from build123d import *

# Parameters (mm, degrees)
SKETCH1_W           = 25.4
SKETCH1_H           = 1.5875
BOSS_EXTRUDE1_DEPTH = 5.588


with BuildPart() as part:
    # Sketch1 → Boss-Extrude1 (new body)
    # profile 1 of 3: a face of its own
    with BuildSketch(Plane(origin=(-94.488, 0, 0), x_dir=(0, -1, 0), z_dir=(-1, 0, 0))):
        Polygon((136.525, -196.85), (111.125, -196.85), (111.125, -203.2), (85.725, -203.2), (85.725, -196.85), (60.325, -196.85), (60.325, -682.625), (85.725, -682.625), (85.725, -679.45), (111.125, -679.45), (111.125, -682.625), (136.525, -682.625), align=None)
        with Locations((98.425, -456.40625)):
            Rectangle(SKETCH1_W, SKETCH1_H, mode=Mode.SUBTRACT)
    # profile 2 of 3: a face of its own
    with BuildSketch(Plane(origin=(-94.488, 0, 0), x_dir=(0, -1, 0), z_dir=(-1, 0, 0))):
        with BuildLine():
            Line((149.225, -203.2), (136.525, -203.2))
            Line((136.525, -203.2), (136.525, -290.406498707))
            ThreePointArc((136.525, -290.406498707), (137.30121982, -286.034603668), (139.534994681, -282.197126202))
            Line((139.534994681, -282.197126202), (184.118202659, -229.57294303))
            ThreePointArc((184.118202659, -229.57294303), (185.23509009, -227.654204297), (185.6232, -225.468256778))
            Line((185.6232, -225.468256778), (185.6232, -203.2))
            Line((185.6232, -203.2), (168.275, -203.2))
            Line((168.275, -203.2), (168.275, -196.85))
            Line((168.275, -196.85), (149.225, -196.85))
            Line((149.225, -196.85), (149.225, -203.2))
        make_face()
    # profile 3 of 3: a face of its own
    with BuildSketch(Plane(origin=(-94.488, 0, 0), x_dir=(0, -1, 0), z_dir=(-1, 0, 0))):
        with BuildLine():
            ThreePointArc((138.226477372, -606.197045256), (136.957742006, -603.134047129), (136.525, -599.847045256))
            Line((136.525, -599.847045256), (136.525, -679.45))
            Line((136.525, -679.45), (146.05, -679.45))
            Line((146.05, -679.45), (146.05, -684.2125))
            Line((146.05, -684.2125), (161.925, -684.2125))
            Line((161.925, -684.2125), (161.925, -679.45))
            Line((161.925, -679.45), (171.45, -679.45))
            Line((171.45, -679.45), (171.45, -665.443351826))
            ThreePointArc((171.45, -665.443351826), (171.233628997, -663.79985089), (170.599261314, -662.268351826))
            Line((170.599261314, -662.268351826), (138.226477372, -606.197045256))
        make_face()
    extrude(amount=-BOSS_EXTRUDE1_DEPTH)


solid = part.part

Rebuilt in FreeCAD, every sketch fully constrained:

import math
import FreeCAD as App
import Part
import Sketcher

V = App.Vector
Q = App.Units.Quantity


def add_polygon(sketch, points):
    """Adds a closed chain of lines whose ends are joined by coincident constraints."""
    first, n = sketch.GeometryCount, len(points)
    for a, b in zip(points, points[1:] + points[:1]):
        sketch.addGeometry(Part.LineSegment(App.Vector(*a, 0), App.Vector(*b, 0)), False)
    for i in range(n):
        sketch.addConstraint(Sketcher.Constraint("Coincident", first + i, 2, first + (i + 1) % n, 1))

doc = App.newDocument("Part")
body = doc.addObject("PartDesign::Body", "Body")

# Sketch on YZ plane
sketch1 = body.newObject("Sketcher::SketchObject", "Sketch")
sketch1.AttachmentSupport = (doc.getObject("YZ_Plane"), [""])
sketch1.MapMode = "FlatFace"
sketch1.AttachmentOffset = App.Placement(V(0, 0, -3.72 * 25.4), App.Rotation())
sketch1.addGeometry(Part.LineSegment(V(-136.5, -196.8, 0), V(-111.1, -196.8, 0)), False)  # 0
sketch1.addGeometry(Part.LineSegment(V(-111.1, -196.8, 0), V(-111.1, -203.2, 0)), False)  # 1
sketch1.addGeometry(Part.LineSegment(V(-111.1, -203.2, 0), V(-85.7, -203.2, 0)), False)  # 2
sketch1.addGeometry(Part.LineSegment(V(-85.7, -203.2, 0), V(-85.7, -196.8, 0)), False)  # 3
sketch1.addGeometry(Part.LineSegment(V(-85.7, -196.8, 0), V(-60.3, -196.8, 0)), False)  # 4
sketch1.addGeometry(Part.LineSegment(V(-60.3, -196.8, 0), V(-60.3, -682.6, 0)), False)  # 5
sketch1.addGeometry(Part.LineSegment(V(-60.3, -682.6, 0), V(-85.7, -682.6, 0)), False)  # 6
sketch1.addGeometry(Part.LineSegment(V(-85.7, -682.6, 0), V(-85.7, -679.5, 0)), False)  # 7
sketch1.addGeometry(Part.LineSegment(V(-85.7, -679.5, 0), V(-111.1, -679.5, 0)), False)  # 8
sketch1.addGeometry(Part.LineSegment(V(-111.1, -679.5, 0), V(-111.1, -682.6, 0)), False)  # 9
sketch1.addGeometry(Part.LineSegment(V(-111.1, -682.6, 0), V(-136.5, -682.6, 0)), False)  # 10
sketch1.addGeometry(Part.LineSegment(V(-136.5, -682.6, 0), V(-136.5, -679.5, 0)), False)  # 11
sketch1.addGeometry(Part.LineSegment(V(-136.5, -679.5, 0), V(-146.1, -679.5, 0)), False)  # 12
sketch1.addGeometry(Part.LineSegment(V(-146.1, -679.5, 0), V(-146.1, -684.2, 0)), False)  # 13
sketch1.addGeometry(Part.LineSegment(V(-146.1, -684.2, 0), V(-161.9, -684.2, 0)), False)  # 14
sketch1.addGeometry(Part.LineSegment(V(-161.9, -684.2, 0), V(-161.9, -679.5, 0)), False)  # 15
sketch1.addGeometry(Part.LineSegment(V(-161.9, -679.5, 0), V(-171.4, -679.5, 0)), False)  # 16
sketch1.addGeometry(Part.LineSegment(V(-171.4, -679.5, 0), V(-171.4, -665.4, 0)), False)  # 17
sketch1.addGeometry(Part.ArcOfCircle(Part.Circle(V(-165.1, -665.4, 0), V(0, 0, 1), 6.4), math.radians(150), math.radians(180)), False)  # 18
sketch1.addGeometry(Part.LineSegment(V(-170.6, -662.3, 0), V(-138.2, -606.2, 0)), False)  # 19
sketch1.addGeometry(Part.ArcOfCircle(Part.Circle(V(-149.2, -599.8, 0), V(0, 0, 1), 12.7), math.radians(-30), math.radians(0)), False)  # 20
sketch1.addGeometry(Part.LineSegment(V(-136.5, -599.8, 0), V(-136.5, -290.4, 0)), False)  # 21
sketch1.addGeometry(Part.ArcOfCircle(Part.Circle(V(-149.2, -290.4, 0), V(0, 0, 1), 12.7), math.radians(0), math.radians(40)), False)  # 22
sketch1.addGeometry(Part.LineSegment(V(-139.5, -282.2, 0), V(-184.1, -229.6, 0)), False)  # 23
sketch1.addGeometry(Part.ArcOfCircle(Part.Circle(V(-179.3, -225.5, 0), V(0, 0, 1), 6.3), math.radians(180), math.radians(220)), False)  # 24
sketch1.addGeometry(Part.LineSegment(V(-185.6, -225.5, 0), V(-185.6, -203.2, 0)), False)  # 25
sketch1.addGeometry(Part.LineSegment(V(-185.6, -203.2, 0), V(-168.3, -203.2, 0)), False)  # 26
sketch1.addGeometry(Part.LineSegment(V(-168.3, -203.2, 0), V(-168.3, -196.8, 0)), False)  # 27
sketch1.addGeometry(Part.LineSegment(V(-168.3, -196.8, 0), V(-149.2, -196.8, 0)), False)  # 28
sketch1.addGeometry(Part.LineSegment(V(-149.2, -196.8, 0), V(-149.2, -203.2, 0)), False)  # 29
sketch1.addGeometry(Part.LineSegment(V(-149.2, -203.2, 0), V(-136.5, -203.2, 0)), False)  # 30
sketch1.addGeometry(Part.LineSegment(V(-136.5, -203.2, 0), V(-136.5, -196.8, 0)), False)  # 31
add_polygon(sketch1, [(-111.1, -457.2), (-85.7, -457.2), (-85.7, -455.6), (-111.1, -455.6)])  # lines 32-35
sketch1.addConstraint([
    Sketcher.Constraint("Coincident", 0, 2, 1, 1),
    Sketcher.Constraint("Coincident", 1, 2, 2, 1),
    Sketcher.Constraint("Coincident", 2, 2, 3, 1),
    Sketcher.Constraint("Coincident", 3, 2, 4, 1),
    Sketcher.Constraint("Coincident", 4, 2, 5, 1),
    Sketcher.Constraint("Coincident", 5, 2, 6, 1),
    Sketcher.Constraint("Coincident", 6, 2, 7, 1),
    Sketcher.Constraint("Coincident", 7, 2, 8, 1),
    Sketcher.Constraint("Coincident", 8, 2, 9, 1),
    Sketcher.Constraint("Coincident", 9, 2, 10, 1),
    Sketcher.Constraint("Coincident", 10, 2, 11, 1),
    Sketcher.Constraint("Coincident", 11, 2, 12, 1),
    Sketcher.Constraint("Coincident", 12, 2, 13, 1),
    Sketcher.Constraint("Coincident", 13, 2, 14, 1),
    Sketcher.Constraint("Coincident", 14, 2, 15, 1),
    Sketcher.Constraint("Coincident", 15, 2, 16, 1),
    Sketcher.Constraint("Coincident", 16, 2, 17, 1),
    Sketcher.Constraint("Tangent", 17, 2, 18, 2),
    Sketcher.Constraint("Tangent", 18, 1, 19, 1),
    Sketcher.Constraint("Tangent", 19, 2, 20, 1),
    Sketcher.Constraint("Tangent", 20, 2, 21, 1),
    Sketcher.Constraint("Tangent", 21, 2, 22, 1),
    Sketcher.Constraint("Tangent", 22, 2, 23, 1),
    Sketcher.Constraint("Tangent", 23, 2, 24, 2),
    Sketcher.Constraint("Tangent", 24, 1, 25, 1),
    Sketcher.Constraint("Coincident", 25, 2, 26, 1),
    Sketcher.Constraint("Coincident", 26, 2, 27, 1),
    Sketcher.Constraint("Coincident", 27, 2, 28, 1),
    Sketcher.Constraint("Coincident", 28, 2, 29, 1),
    Sketcher.Constraint("Coincident", 29, 2, 30, 1),
    Sketcher.Constraint("Coincident", 30, 2, 31, 1),
    Sketcher.Constraint("Coincident", 31, 2, 0, 1),
    Sketcher.Constraint("Horizontal", 0),
    Sketcher.Constraint("Vertical", 1),
    Sketcher.Constraint("Horizontal", 2),
    Sketcher.Constraint("Vertical", 3),
    Sketcher.Constraint("Horizontal", 4),
    Sketcher.Constraint("Vertical", 5),
    Sketcher.Constraint("Horizontal", 6),
    Sketcher.Constraint("Vertical", 7),
    Sketcher.Constraint("Horizontal", 8),
    Sketcher.Constraint("Vertical", 9),
    Sketcher.Constraint("Horizontal", 10),
    Sketcher.Constraint("Vertical", 11),
    Sketcher.Constraint("Horizontal", 12),
    Sketcher.Constraint("Vertical", 13),
    Sketcher.Constraint("Horizontal", 14),
    Sketcher.Constraint("Vertical", 15),
    Sketcher.Constraint("Horizontal", 16),
    Sketcher.Constraint("Vertical", 17),
    Sketcher.Constraint("Vertical", 21),
    Sketcher.Constraint("Vertical", 25),
    Sketcher.Constraint("Horizontal", 26),
    Sketcher.Constraint("Vertical", 27),
    Sketcher.Constraint("Horizontal", 28),
    Sketcher.Constraint("Vertical", 29),
    Sketcher.Constraint("Horizontal", 30),
    Sketcher.Constraint("Vertical", 31),
    Sketcher.Constraint("Horizontal", 32),
    Sketcher.Constraint("Vertical", 33),
    Sketcher.Constraint("Horizontal", 34),
    Sketcher.Constraint("Vertical", 35),
    Sketcher.Constraint("Equal", 20, 22),
    Sketcher.Constraint("Equal", 18, 24),
    Sketcher.Constraint("Horizontal", 0, 2, 3, 2),
    Sketcher.Constraint("Horizontal", 6, 2, 9, 2),
    Sketcher.Constraint("Horizontal", 8, 2, 11, 2),
    Sketcher.Constraint("Horizontal", 12, 2, 15, 2),
    Sketcher.Constraint("Horizontal", 2, 2, 25, 2),
    Sketcher.Constraint("Horizontal", 4, 2, 27, 2),
    Sketcher.Constraint("Horizontal", 26, 2, 29, 2),
    Sketcher.Constraint("Vertical", 3, 2, 6, 2),
    Sketcher.Constraint("Vertical", 1, 2, 8, 2),
    Sketcher.Constraint("Vertical", 11, 2, 20, 2),
    Sketcher.Constraint("Vertical", 22, 3, 28, 2),
    Sketcher.Constraint("Vertical", 21, 2, 30, 2),
    Sketcher.Constraint("Vertical", 7, 2, 32, 2),
    Sketcher.Constraint("Vertical", 9, 2, 34, 2),
    Sketcher.Constraint("Equal", 0, 2),
    Sketcher.Constraint("Equal", 2, 4),
    Sketcher.Constraint("Equal", 12, 16),
    Sketcher.Constraint("Radius", 20, Q("0.5 in")),
    Sketcher.Constraint("DistanceX", 0, 1, 0, 2, Q("1 in")),
    Sketcher.Constraint("Radius", 18, Q("0.25 in")),
    Sketcher.Constraint("DistanceY", 1, 2, -1, 1, Q("8 in")),
    Sketcher.Constraint("DistanceY", 32, 2, -1, 1, Q("18 in")),
    Sketcher.Constraint("Angle", 19, Q("60 deg")),
    Sketcher.Constraint("DistanceX", 14, 2, 10, 2, Q("1 in")),
    Sketcher.Constraint("DistanceX", 28, 1, 28, 2, Q("0.75 in")),
    Sketcher.Constraint("DistanceY", 1, 2, 1, 1, Q("0.25 in")),
    Sketcher.Constraint("DistanceX", 18, 3, -1, 1, Q("6.5 in")),
    Sketcher.Constraint("DistanceX", 12, 2, 12, 1, Q("0.375 in")),
    Sketcher.Constraint("DistanceX", 26, 1, 26, 2, Q("0.683 in")),
    Sketcher.Constraint("DistanceY", 5, 2, 5, 1, Q("19.125 in")),
    Sketcher.Constraint("DistanceY", 7, 1, 7, 2, Q("0.125 in")),
    Sketcher.Constraint("DistanceY", 13, 2, 13, 1, Q("0.1875 in")),
    Sketcher.Constraint("DistanceY", 33, 1, 33, 2, Q("0.0625 in")),
    Sketcher.Constraint("DistanceY", 17, 1, 17, 2, Q("14.006648 mm")),
    Sketcher.Constraint("DistanceY", 22, 3, -1, 1, Q("290.406499 mm")),
    Sketcher.Constraint("Distance", 23, Q("68.97077 mm")),
])
pad1 = body.newObject("PartDesign::Pad", "Pad")
pad1.Profile = sketch1
pad1.Length = Q("0.22 in")

doc.recompute()
